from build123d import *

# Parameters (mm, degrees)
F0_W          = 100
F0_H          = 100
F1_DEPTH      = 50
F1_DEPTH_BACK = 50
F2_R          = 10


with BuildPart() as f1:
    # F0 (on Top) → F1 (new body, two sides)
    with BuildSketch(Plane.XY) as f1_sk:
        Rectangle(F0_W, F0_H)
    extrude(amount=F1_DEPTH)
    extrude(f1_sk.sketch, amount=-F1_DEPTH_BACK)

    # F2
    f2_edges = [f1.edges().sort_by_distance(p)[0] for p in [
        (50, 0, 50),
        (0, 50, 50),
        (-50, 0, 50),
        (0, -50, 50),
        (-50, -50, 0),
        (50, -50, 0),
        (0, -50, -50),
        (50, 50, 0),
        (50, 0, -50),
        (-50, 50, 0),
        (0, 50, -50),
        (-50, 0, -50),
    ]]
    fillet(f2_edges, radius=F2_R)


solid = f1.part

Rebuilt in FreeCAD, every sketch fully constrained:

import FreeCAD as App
import Part
import Sketcher
from FreeCAD import Vector

doc = App.newDocument("Part")
body = doc.addObject("PartDesign::Body", "Body")

# Sketch on XY plane
sketch1 = doc.addObject("Sketcher::SketchObject", "Sketch")
body.addObject(sketch1)
sketch1.AttachmentSupport = (doc.XY_Plane, [""])
sketch1.MapMode = "FlatFace"
sketch1.addGeometry([
    Part.LineSegment(Vector(-50, 50, 0), Vector(-50, -50, 0)),
    Part.LineSegment(Vector(-50, -50, 0), Vector(50, -50, 0)),
    Part.LineSegment(Vector(50, -50, 0), Vector(50, 50, 0)),
    Part.LineSegment(Vector(50, 50, 0), Vector(-50, 50, 0)),
], False)
sketch1.addConstraint([
    Sketcher.Constraint("Coincident", 0, 2, 1, 1),
    Sketcher.Constraint("Coincident", 1, 2, 2, 1),
    Sketcher.Constraint("Coincident", 2, 2, 3, 1),
    Sketcher.Constraint("Coincident", 3, 2, 0, 1),
    Sketcher.Constraint("Vertical", 0),
    Sketcher.Constraint("Horizontal", 1),
    Sketcher.Constraint("Vertical", 2),
    Sketcher.Constraint("Horizontal", 3),
    Sketcher.Constraint("Symmetric", 0, 2, 2, 2, -1, 1),
    Sketcher.Constraint("Equal", 3, 0),
    Sketcher.Constraint("DistanceX", 1, 1, 1, 2, 100.0),
])
pad1 = doc.addObject("PartDesign::Pad", "Pad")
body.addObject(pad1)
pad1.Profile = sketch1
pad1.Type = "TwoLengths"
pad1.Length = 50
pad1.Length2 = 50
doc.recompute()

fillet = doc.addObject("PartDesign::Fillet", "Fillet")
body.addObject(fillet)
fillet.Base = (pad1, ["Edge1"])
fillet.UseAllEdges = True
fillet.Radius = 10

doc.recompute()
